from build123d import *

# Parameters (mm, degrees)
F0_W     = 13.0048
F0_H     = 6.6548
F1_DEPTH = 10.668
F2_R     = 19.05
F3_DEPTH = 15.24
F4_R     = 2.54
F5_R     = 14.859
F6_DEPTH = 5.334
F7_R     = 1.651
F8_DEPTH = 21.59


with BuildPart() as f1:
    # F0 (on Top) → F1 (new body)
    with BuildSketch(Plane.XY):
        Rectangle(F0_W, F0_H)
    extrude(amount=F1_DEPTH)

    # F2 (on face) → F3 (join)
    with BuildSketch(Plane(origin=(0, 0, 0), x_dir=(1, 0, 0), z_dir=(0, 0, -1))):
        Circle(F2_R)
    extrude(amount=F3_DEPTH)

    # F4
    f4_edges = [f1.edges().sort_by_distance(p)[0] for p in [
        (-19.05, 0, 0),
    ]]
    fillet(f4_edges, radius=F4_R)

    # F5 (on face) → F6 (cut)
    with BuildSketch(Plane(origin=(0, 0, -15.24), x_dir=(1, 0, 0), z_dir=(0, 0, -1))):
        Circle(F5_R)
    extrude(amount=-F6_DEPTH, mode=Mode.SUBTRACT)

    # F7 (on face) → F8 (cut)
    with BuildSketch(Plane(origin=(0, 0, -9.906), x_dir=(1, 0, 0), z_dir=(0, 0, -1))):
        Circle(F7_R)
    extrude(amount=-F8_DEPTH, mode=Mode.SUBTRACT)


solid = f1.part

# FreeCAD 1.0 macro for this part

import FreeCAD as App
import Part
import Sketcher
from FreeCAD import Vector
Q = App.Units.Quantity


def edges_at(feature, points):
    """Names of the edges that pass closest to the given points."""
    edges = feature.Shape.Edges
    near = lambda p: min(range(len(edges)), key=lambda i: edges[i].distToShape(Part.Vertex(*p))[0])
    return sorted({f"Edge{near(p) + 1}" for p in points})

doc = App.newDocument("Part")
params = doc.addObject("Spreadsheet::Sheet", "Params")
for row, (alias, value) in enumerate([
    ("sketch1_width", "0.512 in"),
    ("sketch1_height", "0.262 in"),
    ("pad1_length", "0.42 in"),
    ("sketch2_diameter", "1.5 in"),
    ("pad2_length", "0.6 in"),
    ("fillet_radius", "0.1 in"),
    ("sketch3_diameter", "1.17 in"),
    ("pocket1_length", "0.21 in"),
    ("sketch4_diameter", "0.13 in"),
    ("pocket2_length", "0.85 in"),
], start=1):
    params.set(f"A{row}", alias)
    params.set(f"B{row}", "=" + value)
    params.setAlias(f"B{row}", alias)

body = doc.addObject("PartDesign::Body", "Body")

# Sketch on XY plane
sketch1 = body.newObject("Sketcher::SketchObject", "Sketch")
sketch1.AttachmentSupport = (doc.getObject("XY_Plane"), [""])
sketch1.MapMode = "FlatFace"
sketch1.addGeometry([
    Part.LineSegment(Vector(-6.5024, 3.3274, 0), Vector(-6.5024, -3.3274, 0)),
    Part.LineSegment(Vector(-6.5024, -3.3274, 0), Vector(6.5024, -3.3274, 0)),
    Part.LineSegment(Vector(6.5024, -3.3274, 0), Vector(6.5024, 3.3274, 0)),
    Part.LineSegment(Vector(6.5024, 3.3274, 0), Vector(-6.5024, 3.3274, 0)),
], False)
sketch1.addConstraint([
    Sketcher.Constraint("Coincident", 0, 2, 1, 1),
    Sketcher.Constraint("Coincident", 1, 2, 2, 1),
    Sketcher.Constraint("Coincident", 2, 2, 3, 1),
    Sketcher.Constraint("Coincident", 3, 2, 0, 1),
    Sketcher.Constraint("Vertical", 0),
    Sketcher.Constraint("Horizontal", 1),
    Sketcher.Constraint("Vertical", 2),
    Sketcher.Constraint("Horizontal", 3),
    Sketcher.Constraint("Symmetric", 0, 2, 2, 2, -1, 1),
    Sketcher.Constraint("DistanceX", 1, 1, 1, 2, Q("0.512 in")),
    Sketcher.Constraint("DistanceY", 0, 2, 0, 1, Q("0.262 in")),
])
sketch1.setExpression("Constraints[9]", "Params.sketch1_width")
sketch1.setExpression("Constraints[10]", "Params.sketch1_height")
pad1 = body.newObject("PartDesign::Pad", "Pad")
pad1.Profile = sketch1
pad1.setExpression("Length", "Params.pad1_length")

# Sketch on XY plane
sketch2 = body.newObject("Sketcher::SketchObject", "Sketch001")
sketch2.AttachmentSupport = (doc.getObject("XY_Plane"), [""])
sketch2.MapMode = "FlatFace"
sketch2.addGeometry(Part.Circle(Vector(0, 0, 0), Vector(0, 0, 1), 19.05), False)
sketch2.addConstraint([
    Sketcher.Constraint("Coincident", 0, 3, -1, 1),
    Sketcher.Constraint("Diameter", 0, Q("1.5 in")),
])
sketch2.setExpression("Constraints[1]", "Params.sketch2_diameter")
pad2 = body.newObject("PartDesign::Pad", "Pad001")
pad2.Profile = sketch2
pad2.setExpression("Length", "Params.pad2_length")
pad2.Reversed = True
doc.recompute()

fillet = body.newObject("PartDesign::Fillet", "Fillet")
fillet.Base = (pad2, edges_at(pad2, [(-19.05, 0, 0)]))
fillet.setExpression("Radius", "Params.fillet_radius")

# Sketch on XY plane
sketch3 = body.newObject("Sketcher::SketchObject", "Sketch002")
sketch3.AttachmentSupport = (doc.getObject("XY_Plane"), [""])
sketch3.MapMode = "FlatFace"
sketch3.AttachmentOffset = App.Placement(Vector(0, 0, -0.6 * 25.4), App.Rotation())
sketch3.addGeometry(Part.Circle(Vector(0, 0, 0), Vector(0, 0, 1), 14.859), False)
sketch3.addConstraint([
    Sketcher.Constraint("Coincident", 0, 3, -1, 1),
    Sketcher.Constraint("Diameter", 0, Q("1.17 in")),
])
sketch3.setExpression("Constraints[1]", "Params.sketch3_diameter")
pocket1 = body.newObject("PartDesign::Pocket", "Pocket")
pocket1.Profile = sketch3
pocket1.setExpression("Length", "Params.pocket1_length")
pocket1.Reversed = True

# Sketch on XY plane
sketch4 = body.newObject("Sketcher::SketchObject", "Sketch003")
sketch4.AttachmentSupport = (doc.getObject("XY_Plane"), [""])
sketch4.MapMode = "FlatFace"
sketch4.AttachmentOffset = App.Placement(Vector(0, 0, -0.39 * 25.4), App.Rotation())
sketch4.addGeometry(Part.Circle(Vector(0, 0, 0), Vector(0, 0, 1), 1.651), False)
sketch4.addConstraint([
    Sketcher.Constraint("Coincident", 0, 3, -1, 1),
    Sketcher.Constraint("Diameter", 0, Q("0.13 in")),
])
sketch4.setExpression("Constraints[1]", "Params.sketch4_diameter")
pocket2 = body.newObject("PartDesign::Pocket", "Pocket001")
pocket2.Profile = sketch4
pocket2.setExpression("Length", "Params.pocket2_length")
pocket2.Reversed = True

doc.recompute()
